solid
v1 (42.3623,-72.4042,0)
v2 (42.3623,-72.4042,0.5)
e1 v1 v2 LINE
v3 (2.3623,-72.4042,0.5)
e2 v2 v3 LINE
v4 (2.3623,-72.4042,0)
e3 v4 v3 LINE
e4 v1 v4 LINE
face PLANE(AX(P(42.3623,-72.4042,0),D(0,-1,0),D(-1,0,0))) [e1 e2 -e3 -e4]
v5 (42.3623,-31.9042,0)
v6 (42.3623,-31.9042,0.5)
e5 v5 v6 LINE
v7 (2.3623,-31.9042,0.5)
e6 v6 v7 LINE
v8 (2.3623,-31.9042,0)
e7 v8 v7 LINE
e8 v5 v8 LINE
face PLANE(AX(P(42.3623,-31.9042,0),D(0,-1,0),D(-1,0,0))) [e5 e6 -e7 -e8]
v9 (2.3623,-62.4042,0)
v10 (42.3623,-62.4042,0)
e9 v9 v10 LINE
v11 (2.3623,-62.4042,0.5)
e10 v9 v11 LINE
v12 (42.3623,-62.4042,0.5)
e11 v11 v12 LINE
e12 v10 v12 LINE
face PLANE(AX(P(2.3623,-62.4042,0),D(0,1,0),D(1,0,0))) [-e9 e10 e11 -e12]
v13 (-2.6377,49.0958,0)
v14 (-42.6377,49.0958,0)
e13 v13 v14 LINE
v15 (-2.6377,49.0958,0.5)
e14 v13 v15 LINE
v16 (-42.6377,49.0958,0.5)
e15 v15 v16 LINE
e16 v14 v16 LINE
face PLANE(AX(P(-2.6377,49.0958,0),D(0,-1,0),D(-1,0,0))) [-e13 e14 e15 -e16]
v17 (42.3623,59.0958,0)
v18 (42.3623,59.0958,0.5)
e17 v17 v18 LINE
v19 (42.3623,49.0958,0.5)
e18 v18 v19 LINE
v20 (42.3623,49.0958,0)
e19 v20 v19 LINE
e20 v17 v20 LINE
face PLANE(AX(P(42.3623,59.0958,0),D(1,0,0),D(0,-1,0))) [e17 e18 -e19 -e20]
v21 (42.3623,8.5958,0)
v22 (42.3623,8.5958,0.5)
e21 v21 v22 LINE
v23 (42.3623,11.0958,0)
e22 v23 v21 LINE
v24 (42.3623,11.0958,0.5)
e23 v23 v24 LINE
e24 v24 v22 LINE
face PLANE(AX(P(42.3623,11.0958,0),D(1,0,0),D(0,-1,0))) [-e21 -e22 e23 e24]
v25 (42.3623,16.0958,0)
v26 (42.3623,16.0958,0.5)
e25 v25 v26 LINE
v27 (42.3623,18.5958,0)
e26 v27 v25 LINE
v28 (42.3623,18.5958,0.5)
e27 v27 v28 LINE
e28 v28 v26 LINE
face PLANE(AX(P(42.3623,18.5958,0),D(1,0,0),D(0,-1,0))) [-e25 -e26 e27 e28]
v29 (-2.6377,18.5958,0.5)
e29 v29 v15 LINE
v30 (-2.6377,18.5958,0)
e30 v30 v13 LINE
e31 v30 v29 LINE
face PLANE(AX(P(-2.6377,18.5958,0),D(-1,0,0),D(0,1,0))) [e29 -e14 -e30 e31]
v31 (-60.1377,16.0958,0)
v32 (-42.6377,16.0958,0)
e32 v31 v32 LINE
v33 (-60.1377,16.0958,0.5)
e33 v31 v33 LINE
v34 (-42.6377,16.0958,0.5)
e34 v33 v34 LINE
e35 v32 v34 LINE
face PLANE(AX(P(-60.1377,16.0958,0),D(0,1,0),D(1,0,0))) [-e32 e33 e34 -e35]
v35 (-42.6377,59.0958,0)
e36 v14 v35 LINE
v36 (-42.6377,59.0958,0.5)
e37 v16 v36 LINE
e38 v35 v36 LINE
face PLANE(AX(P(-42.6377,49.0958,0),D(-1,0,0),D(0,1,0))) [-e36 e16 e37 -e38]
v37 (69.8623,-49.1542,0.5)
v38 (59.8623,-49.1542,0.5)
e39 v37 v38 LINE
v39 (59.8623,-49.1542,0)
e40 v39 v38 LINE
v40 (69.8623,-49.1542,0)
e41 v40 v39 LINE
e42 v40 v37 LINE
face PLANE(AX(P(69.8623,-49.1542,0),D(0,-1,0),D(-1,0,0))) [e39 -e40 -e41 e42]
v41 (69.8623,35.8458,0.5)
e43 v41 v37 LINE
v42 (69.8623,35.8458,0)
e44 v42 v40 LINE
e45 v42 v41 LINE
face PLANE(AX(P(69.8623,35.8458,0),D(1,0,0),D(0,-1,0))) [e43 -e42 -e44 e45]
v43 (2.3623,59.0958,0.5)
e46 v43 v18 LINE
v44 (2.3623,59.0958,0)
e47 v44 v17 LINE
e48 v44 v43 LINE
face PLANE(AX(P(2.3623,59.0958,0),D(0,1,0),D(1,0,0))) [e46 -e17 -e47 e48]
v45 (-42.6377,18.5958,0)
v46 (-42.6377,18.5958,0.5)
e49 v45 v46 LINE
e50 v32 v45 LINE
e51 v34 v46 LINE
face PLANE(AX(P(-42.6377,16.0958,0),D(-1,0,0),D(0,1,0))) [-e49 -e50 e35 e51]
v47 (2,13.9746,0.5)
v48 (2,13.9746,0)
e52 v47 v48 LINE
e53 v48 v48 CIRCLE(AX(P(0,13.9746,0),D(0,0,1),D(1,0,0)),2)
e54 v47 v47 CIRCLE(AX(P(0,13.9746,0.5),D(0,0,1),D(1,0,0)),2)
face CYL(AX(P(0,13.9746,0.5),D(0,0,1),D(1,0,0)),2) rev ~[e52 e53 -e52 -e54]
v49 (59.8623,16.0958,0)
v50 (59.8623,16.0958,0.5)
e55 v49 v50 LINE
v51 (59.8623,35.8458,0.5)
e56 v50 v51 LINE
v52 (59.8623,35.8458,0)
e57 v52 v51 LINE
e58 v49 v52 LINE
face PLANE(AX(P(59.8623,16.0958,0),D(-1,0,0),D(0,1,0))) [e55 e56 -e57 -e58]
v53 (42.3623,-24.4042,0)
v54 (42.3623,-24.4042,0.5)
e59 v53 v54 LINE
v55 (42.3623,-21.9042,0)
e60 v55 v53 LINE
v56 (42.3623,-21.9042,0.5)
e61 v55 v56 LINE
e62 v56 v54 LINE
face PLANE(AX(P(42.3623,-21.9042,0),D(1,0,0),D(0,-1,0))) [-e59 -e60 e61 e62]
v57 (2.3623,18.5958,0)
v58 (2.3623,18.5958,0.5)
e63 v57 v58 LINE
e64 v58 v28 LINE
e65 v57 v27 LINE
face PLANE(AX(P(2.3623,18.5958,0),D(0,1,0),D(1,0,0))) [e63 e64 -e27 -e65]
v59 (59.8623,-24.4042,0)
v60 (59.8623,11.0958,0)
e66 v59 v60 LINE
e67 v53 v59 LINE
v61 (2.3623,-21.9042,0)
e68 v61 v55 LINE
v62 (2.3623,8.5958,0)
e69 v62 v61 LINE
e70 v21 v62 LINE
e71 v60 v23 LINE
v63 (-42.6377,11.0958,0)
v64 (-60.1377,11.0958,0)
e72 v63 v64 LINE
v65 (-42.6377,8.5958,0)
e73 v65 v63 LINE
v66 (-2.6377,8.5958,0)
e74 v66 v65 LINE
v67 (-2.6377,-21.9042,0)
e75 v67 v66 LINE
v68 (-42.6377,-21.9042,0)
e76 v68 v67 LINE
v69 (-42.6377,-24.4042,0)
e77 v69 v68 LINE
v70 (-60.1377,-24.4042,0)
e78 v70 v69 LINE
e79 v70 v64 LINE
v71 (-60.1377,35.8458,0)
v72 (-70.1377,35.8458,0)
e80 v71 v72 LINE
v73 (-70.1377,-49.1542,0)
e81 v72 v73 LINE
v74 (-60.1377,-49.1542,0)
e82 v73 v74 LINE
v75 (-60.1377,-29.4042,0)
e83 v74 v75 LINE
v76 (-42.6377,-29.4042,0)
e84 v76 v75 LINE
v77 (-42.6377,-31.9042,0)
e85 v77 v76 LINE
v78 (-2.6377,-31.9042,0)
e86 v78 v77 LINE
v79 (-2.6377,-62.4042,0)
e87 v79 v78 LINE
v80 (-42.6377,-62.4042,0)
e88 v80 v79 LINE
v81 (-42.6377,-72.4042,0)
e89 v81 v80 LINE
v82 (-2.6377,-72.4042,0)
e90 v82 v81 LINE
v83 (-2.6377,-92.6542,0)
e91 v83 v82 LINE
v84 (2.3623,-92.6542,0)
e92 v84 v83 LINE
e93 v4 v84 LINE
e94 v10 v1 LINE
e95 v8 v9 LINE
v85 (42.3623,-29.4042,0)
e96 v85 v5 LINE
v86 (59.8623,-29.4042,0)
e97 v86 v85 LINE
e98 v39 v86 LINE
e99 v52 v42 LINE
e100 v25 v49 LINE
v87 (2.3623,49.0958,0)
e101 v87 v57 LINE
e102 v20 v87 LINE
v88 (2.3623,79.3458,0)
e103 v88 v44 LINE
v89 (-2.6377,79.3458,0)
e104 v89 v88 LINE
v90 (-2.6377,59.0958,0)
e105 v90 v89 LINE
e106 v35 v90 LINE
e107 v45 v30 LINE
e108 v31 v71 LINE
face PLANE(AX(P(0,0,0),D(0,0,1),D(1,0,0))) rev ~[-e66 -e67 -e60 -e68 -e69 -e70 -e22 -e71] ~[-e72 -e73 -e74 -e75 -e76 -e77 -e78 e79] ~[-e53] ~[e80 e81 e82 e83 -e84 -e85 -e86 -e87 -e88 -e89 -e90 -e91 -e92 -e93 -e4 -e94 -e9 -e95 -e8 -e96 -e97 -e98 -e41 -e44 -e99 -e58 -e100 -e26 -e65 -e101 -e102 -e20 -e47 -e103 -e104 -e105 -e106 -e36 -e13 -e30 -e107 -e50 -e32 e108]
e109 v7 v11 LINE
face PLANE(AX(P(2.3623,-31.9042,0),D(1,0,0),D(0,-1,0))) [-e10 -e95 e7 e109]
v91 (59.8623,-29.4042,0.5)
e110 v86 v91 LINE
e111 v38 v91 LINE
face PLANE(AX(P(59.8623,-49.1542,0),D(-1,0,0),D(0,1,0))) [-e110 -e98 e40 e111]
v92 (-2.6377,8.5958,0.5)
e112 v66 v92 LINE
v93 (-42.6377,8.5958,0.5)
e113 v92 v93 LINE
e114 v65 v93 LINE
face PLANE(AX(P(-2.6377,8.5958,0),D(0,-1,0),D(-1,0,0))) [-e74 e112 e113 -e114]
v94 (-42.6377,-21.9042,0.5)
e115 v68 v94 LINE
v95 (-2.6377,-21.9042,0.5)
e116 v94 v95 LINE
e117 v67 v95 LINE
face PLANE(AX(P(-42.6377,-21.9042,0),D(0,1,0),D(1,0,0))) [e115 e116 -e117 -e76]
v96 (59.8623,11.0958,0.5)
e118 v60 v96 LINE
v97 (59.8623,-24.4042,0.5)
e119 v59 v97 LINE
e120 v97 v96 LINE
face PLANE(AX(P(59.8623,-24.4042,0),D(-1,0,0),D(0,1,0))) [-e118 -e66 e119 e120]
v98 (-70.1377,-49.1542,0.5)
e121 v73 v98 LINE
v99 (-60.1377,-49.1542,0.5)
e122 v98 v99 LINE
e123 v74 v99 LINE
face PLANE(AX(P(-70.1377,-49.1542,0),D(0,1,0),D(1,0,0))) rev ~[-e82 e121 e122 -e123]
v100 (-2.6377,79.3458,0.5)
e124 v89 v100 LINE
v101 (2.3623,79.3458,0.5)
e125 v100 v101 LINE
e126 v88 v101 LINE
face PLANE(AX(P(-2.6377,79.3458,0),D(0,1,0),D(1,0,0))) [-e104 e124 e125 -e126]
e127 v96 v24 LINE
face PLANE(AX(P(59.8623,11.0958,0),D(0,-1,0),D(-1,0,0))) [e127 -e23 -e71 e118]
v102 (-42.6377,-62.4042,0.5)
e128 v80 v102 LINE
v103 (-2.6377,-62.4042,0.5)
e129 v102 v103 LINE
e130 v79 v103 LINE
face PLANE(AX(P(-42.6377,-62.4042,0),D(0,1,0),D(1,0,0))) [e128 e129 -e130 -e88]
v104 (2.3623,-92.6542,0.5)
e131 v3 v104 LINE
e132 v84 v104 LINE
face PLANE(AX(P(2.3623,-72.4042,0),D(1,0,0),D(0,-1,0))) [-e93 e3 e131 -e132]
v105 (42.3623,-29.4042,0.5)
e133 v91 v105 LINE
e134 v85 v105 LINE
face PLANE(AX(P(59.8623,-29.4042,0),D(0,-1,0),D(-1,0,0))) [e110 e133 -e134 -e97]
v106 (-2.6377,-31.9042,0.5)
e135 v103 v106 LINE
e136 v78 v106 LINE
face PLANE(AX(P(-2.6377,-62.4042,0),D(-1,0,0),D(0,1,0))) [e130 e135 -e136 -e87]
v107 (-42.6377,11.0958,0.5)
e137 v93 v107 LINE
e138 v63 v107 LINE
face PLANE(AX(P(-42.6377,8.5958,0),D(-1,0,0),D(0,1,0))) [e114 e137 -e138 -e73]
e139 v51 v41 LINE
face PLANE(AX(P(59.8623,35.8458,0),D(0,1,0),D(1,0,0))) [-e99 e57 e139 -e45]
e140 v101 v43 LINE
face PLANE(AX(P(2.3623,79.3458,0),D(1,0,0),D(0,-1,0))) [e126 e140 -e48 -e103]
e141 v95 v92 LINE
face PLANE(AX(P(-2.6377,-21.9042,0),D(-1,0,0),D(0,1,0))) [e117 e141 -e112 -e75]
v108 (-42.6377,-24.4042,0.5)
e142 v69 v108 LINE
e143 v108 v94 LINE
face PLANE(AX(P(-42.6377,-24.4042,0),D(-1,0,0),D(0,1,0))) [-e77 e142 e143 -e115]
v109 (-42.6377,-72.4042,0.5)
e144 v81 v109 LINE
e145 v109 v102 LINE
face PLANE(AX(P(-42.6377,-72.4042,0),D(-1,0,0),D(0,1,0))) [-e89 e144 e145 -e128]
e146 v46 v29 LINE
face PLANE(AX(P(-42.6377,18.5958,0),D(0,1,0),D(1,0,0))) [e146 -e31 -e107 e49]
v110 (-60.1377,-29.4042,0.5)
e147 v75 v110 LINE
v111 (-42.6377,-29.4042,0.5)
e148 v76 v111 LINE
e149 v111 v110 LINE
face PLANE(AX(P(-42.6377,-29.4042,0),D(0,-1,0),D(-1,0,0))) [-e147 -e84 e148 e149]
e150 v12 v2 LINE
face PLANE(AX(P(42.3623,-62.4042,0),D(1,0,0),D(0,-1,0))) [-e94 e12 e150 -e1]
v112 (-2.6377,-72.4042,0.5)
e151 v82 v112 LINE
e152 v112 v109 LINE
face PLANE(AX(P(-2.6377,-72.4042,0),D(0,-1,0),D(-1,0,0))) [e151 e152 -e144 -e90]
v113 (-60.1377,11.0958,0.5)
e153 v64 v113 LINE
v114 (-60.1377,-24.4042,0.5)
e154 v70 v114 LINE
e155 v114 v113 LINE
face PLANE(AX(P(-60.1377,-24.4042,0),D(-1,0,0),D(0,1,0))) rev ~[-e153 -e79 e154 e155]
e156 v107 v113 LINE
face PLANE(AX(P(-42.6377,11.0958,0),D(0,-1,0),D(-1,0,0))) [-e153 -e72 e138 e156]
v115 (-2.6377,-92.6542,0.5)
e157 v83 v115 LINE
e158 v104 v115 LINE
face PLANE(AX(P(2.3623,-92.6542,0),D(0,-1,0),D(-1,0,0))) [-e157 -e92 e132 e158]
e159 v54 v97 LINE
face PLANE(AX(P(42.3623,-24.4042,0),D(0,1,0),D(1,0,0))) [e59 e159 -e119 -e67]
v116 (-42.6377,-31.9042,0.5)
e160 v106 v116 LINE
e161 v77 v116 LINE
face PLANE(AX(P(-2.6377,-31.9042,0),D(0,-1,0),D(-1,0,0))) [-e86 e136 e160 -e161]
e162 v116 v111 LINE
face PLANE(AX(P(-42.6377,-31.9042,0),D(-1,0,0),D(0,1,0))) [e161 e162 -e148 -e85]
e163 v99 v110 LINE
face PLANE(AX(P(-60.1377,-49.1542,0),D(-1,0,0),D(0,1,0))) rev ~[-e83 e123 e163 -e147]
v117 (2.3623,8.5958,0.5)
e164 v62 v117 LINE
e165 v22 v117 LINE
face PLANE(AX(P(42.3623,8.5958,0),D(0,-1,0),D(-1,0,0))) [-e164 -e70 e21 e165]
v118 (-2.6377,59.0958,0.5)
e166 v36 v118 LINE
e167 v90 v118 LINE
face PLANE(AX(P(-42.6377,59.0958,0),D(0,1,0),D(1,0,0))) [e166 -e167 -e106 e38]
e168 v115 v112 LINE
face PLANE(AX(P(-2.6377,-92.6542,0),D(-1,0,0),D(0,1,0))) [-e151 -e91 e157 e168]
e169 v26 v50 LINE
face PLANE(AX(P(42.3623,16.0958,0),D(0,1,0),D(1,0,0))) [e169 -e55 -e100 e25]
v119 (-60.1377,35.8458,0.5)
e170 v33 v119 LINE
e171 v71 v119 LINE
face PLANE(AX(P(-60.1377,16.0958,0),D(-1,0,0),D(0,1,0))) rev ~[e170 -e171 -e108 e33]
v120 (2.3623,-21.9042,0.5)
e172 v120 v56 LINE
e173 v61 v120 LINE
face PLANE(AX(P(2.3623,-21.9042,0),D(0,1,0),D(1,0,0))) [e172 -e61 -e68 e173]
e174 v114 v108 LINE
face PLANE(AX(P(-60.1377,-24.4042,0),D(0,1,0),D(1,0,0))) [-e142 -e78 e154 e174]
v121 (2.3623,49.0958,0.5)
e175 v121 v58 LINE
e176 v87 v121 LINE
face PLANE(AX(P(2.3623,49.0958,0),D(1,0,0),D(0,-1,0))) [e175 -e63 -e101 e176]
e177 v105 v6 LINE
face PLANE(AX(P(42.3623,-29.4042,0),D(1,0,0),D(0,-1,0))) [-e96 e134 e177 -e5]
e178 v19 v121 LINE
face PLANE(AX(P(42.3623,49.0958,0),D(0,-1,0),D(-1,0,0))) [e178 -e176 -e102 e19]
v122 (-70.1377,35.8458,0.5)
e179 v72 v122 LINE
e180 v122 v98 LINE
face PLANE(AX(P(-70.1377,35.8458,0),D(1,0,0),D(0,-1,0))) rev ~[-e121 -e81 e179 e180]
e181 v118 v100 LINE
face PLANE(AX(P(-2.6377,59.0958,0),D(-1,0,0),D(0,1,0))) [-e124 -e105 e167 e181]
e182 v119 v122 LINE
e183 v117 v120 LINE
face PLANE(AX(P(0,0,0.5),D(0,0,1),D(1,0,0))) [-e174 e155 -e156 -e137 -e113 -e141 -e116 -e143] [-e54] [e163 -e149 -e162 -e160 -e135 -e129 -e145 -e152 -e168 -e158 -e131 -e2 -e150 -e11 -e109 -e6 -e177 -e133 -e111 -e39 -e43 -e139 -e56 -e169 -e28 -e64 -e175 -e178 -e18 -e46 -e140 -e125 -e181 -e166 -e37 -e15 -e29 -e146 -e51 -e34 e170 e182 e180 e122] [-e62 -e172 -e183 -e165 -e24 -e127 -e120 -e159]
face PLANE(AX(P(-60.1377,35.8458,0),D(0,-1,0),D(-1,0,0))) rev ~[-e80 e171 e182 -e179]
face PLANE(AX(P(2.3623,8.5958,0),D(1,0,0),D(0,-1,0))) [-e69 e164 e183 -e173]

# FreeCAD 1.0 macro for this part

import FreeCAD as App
import Part
import Sketcher
Q = App.Units.Quantity


def add_polygon(sketch, points):
    """Adds a closed chain of lines whose ends are joined by coincident constraints."""
    first, n = sketch.GeometryCount, len(points)
    for a, b in zip(points, points[1:] + points[:1]):
        sketch.addGeometry(Part.LineSegment(App.Vector(*a, 0), App.Vector(*b, 0)), False)
    for i in range(n):
        sketch.addConstraint(Sketcher.Constraint("Coincident", first + i, 2, first + (i + 1) % n, 1))

doc = App.newDocument("Part")
body = doc.addObject("PartDesign::Body", "Body")

# Sketch on XY plane
sketch1 = doc.addObject("Sketcher::SketchObject", "Sketch")
body.addObject(sketch1)
sketch1.AttachmentSupport = (doc.XY_Plane, [""])
sketch1.MapMode = "FlatFace"
add_polygon(sketch1, [(-2.6, -72.4), (-2.6, -92.7), (2.4, -92.7), (2.4, -72.4), (42.4, -72.4), (42.4, -62.4), (2.4, -62.4), (2.4, -31.9), (42.4, -31.9), (42.4, -29.4), (59.9, -29.4), (59.9, -49.2), (69.9, -49.2), (69.9, 35.8), (59.9, 35.8), (59.9, 16.1), (42.4, 16.1), (42.4, 18.6), (2.4, 18.6), (2.4, 49.1), (42.4, 49.1), (42.4, 59.1), (2.4, 59.1), (2.4, 79.3), (-2.6, 79.3), (-2.6, 59.1), (-42.6, 59.1), (-42.6, 49.1), (-2.6, 49.1), (-2.6, 18.6), (-42.6, 18.6), (-42.6, 16.1), (-60.1, 16.1), (-60.1, 35.8), (-70.1, 35.8), (-70.1, -49.2), (-60.1, -49.2), (-60.1, -29.4), (-42.6, -29.4), (-42.6, -31.9), (-2.6, -31.9), (-2.6, -62.4), (-42.6, -62.4), (-42.6, -72.4)])  # lines 0-43
add_polygon(sketch1, [(-2.6, -21.9), (-42.6, -21.9), (-42.6, -24.4), (-60.1, -24.4), (-60.1, 11.1), (-42.6, 11.1), (-42.6, 8.6), (-2.6, 8.6)])  # lines 44-51
add_polygon(sketch1, [(2.4, -21.9), (2.4, 8.6), (42.4, 8.6), (42.4, 11.1), (59.9, 11.1), (59.9, -24.4), (42.4, -24.4), (42.4, -21.9)])  # lines 52-59
sketch1.addConstraint([
    Sketcher.Constraint("Vertical", 0),
    Sketcher.Constraint("Horizontal", 1),
    Sketcher.Constraint("Vertical", 2),
    Sketcher.Constraint("Horizontal", 3),
    Sketcher.Constraint("Vertical", 4),
    Sketcher.Constraint("Horizontal", 5),
    Sketcher.Constraint("Vertical", 6),
    Sketcher.Constraint("Horizontal", 7),
    Sketcher.Constraint("Vertical", 8),
    Sketcher.Constraint("Horizontal", 9),
    Sketcher.Constraint("Vertical", 10),
    Sketcher.Constraint("Horizontal", 11),
    Sketcher.Constraint("Vertical", 12),
    Sketcher.Constraint("Horizontal", 13),
    Sketcher.Constraint("Vertical", 14),
    Sketcher.Constraint("Horizontal", 15),
    Sketcher.Constraint("Vertical", 16),
    Sketcher.Constraint("Horizontal", 17),
    Sketcher.Constraint("Vertical", 18),
    Sketcher.Constraint("Horizontal", 19),
    Sketcher.Constraint("Vertical", 20),
    Sketcher.Constraint("Horizontal", 21),
    Sketcher.Constraint("Vertical", 22),
    Sketcher.Constraint("Horizontal", 23),
    Sketcher.Constraint("Vertical", 24),
    Sketcher.Constraint("Horizontal", 25),
    Sketcher.Constraint("Vertical", 26),
    Sketcher.Constraint("Horizontal", 27),
    Sketcher.Constraint("Vertical", 28),
    Sketcher.Constraint("Horizontal", 29),
    Sketcher.Constraint("Vertical", 30),
    Sketcher.Constraint("Horizontal", 31),
    Sketcher.Constraint("Vertical", 32),
    Sketcher.Constraint("Horizontal", 33),
    Sketcher.Constraint("Vertical", 34),
    Sketcher.Constraint("Horizontal", 35),
    Sketcher.Constraint("Vertical", 36),
    Sketcher.Constraint("Horizontal", 37),
    Sketcher.Constraint("Vertical", 38),
    Sketcher.Constraint("Horizontal", 39),
    Sketcher.Constraint("Vertical", 40),
    Sketcher.Constraint("Horizontal", 41),
    Sketcher.Constraint("Vertical", 42),
    Sketcher.Constraint("Horizontal", 43),
    Sketcher.Constraint("Horizontal", 44),
    Sketcher.Constraint("Vertical", 45),
    Sketcher.Constraint("Horizontal", 46),
    Sketcher.Constraint("Vertical", 47),
    Sketcher.Constraint("Horizontal", 48),
    Sketcher.Constraint("Vertical", 49),
    Sketcher.Constraint("Horizontal", 50),
    Sketcher.Constraint("Vertical", 51),
    Sketcher.Constraint("Vertical", 52),
    Sketcher.Constraint("Horizontal", 53),
    Sketcher.Constraint("Vertical", 54),
    Sketcher.Constraint("Horizontal", 55),
    Sketcher.Constraint("Vertical", 56),
    Sketcher.Constraint("Horizontal", 57),
    Sketcher.Constraint("Vertical", 58),
    Sketcher.Constraint("Horizontal", 59),
    Sketcher.Constraint("Horizontal", 21, 2, 24, 2),
    Sketcher.Constraint("Horizontal", 19, 2, 26, 2),
    Sketcher.Constraint("Horizontal", 17, 2, 28, 2),
    Sketcher.Constraint("Horizontal", 15, 2, 30, 2),
    Sketcher.Constraint("Horizontal", 13, 2, 32, 2),
    Sketcher.Constraint("Horizontal", 11, 2, 34, 2),
    Sketcher.Constraint("Horizontal", 9, 2, 36, 2),
    Sketcher.Constraint("Horizontal", 7, 2, 38, 2),
    Sketcher.Constraint("Horizontal", 5, 2, 40, 2),
    Sketcher.Constraint("Horizontal", 3, 2, 42, 2),
    Sketcher.Constraint("Horizontal", 50, 2, 52, 2),
    Sketcher.Constraint("Horizontal", 48, 2, 54, 2),
    Sketcher.Constraint("Horizontal", 46, 2, 56, 2),
    Sketcher.Constraint("Horizontal", 51, 2, 58, 2),
    Sketcher.Constraint("Vertical", 2, 2, 5, 2),
    Sketcher.Constraint("Vertical", 4, 2, 7, 2),
    Sketcher.Constraint("Vertical", 10, 2, 13, 2),
    Sketcher.Constraint("Vertical", 8, 2, 15, 2),
    Sketcher.Constraint("Vertical", 6, 2, 17, 2),
    Sketcher.Constraint("Vertical", 16, 2, 19, 2),
    Sketcher.Constraint("Vertical", 18, 2, 21, 2),
    Sketcher.Constraint("Vertical", 0, 2, 23, 2),
    Sketcher.Constraint("Vertical", 24, 2, 27, 2),
    Sketcher.Constraint("Vertical", 26, 2, 29, 2),
    Sketcher.Constraint("Vertical", 32, 2, 35, 2),
    Sketcher.Constraint("Vertical", 30, 2, 37, 2),
    Sketcher.Constraint("Vertical", 28, 2, 39, 2),
    Sketcher.Constraint("Vertical", 38, 2, 41, 2),
    Sketcher.Constraint("Vertical", 42, 2, 44, 2),
    Sketcher.Constraint("Vertical", 36, 2, 46, 2),
    Sketcher.Constraint("Vertical", 45, 2, 48, 2),
    Sketcher.Constraint("Vertical", 43, 2, 50, 2),
    Sketcher.Constraint("Vertical", 22, 2, 52, 2),
    Sketcher.Constraint("Vertical", 20, 2, 53, 2),
    Sketcher.Constraint("Vertical", 14, 2, 55, 2),
    Sketcher.Constraint("Vertical", 54, 2, 57, 2),
    Sketcher.Constraint("Equal", 21, 25),
    Sketcher.Constraint("Equal", 15, 31),
    Sketcher.Constraint("Equal", 13, 33),
    Sketcher.Constraint("Equal", 35, 4),
    Sketcher.Constraint("Equal", 10, 14),
    Sketcher.Constraint("Equal", 8, 16),
    Sketcher.Constraint("Equal", 6, 18),
    Sketcher.Constraint("Equal", 4, 20),
    Sketcher.Constraint("Equal", 2, 22),
    Sketcher.Constraint("Equal", 38, 45),
    Sketcher.Constraint("Equal", 45, 49),
    Sketcher.Constraint("Equal", 40, 51),
    Sketcher.Constraint("DistanceX", 1, 1, 1, 2, Q("5 mm")),
    Sketcher.Constraint("DistanceX", 11, 1, 11, 2, Q("10 mm")),
    Sketcher.Constraint("DistanceY", 12, 1, 12, 2, Q("85 mm")),
    Sketcher.Constraint("DistanceY", 6, 1, 6, 2, Q("30.5 mm")),
    Sketcher.Constraint("DistanceY", 38, 2, 44, 2, Q("10 mm")),
    Sketcher.Constraint("DistanceY", 37, 2, 45, 2, Q("5 mm")),
    Sketcher.Constraint("DistanceY", 47, 2, 31, 2, Q("5 mm")),
    Sketcher.Constraint("DistanceY", 0, 2, 0, 1, Q("20.25 mm")),
    Sketcher.Constraint("DistanceX", 3, 1, 3, 2, Q("40 mm")),
    Sketcher.Constraint("DistanceX", 9, 1, 9, 2, Q("17.5 mm")),
    Sketcher.Constraint("DistanceX", 0, 2, -1, 1, Q("2.6377 mm")),
    Sketcher.Constraint("DistanceY", 0, 2, -1, 1, Q("92.6542 mm")),
])
pad1 = doc.addObject("PartDesign::Pad", "Pad")
body.addObject(pad1)
pad1.Profile = sketch1
pad1.Length = 0.5

# Sketch on XY plane
sketch2 = doc.addObject("Sketcher::SketchObject", "Sketch001")
body.addObject(sketch2)
sketch2.AttachmentSupport = (doc.XY_Plane, [""])
sketch2.MapMode = "FlatFace"
sketch2.AttachmentOffset = App.Placement(App.Vector(0, 0, 0.5), App.Rotation())
sketch2.addGeometry(Part.Circle(App.Vector(0, 14, 0), App.Vector(0, 0, 1), 2), False)
sketch2.addConstraint([
    Sketcher.Constraint("PointOnObject", 0, 3, -2),
    Sketcher.Constraint("Diameter", 0, Q("4 mm")),
    Sketcher.Constraint("DistanceY", -1, 1, 0, 3, Q("13.9746 mm")),
])
pocket1 = doc.addObject("PartDesign::Pocket", "Pocket")
body.addObject(pocket1)
pocket1.Profile = sketch2
pocket1.Length = 10

doc.recompute()
